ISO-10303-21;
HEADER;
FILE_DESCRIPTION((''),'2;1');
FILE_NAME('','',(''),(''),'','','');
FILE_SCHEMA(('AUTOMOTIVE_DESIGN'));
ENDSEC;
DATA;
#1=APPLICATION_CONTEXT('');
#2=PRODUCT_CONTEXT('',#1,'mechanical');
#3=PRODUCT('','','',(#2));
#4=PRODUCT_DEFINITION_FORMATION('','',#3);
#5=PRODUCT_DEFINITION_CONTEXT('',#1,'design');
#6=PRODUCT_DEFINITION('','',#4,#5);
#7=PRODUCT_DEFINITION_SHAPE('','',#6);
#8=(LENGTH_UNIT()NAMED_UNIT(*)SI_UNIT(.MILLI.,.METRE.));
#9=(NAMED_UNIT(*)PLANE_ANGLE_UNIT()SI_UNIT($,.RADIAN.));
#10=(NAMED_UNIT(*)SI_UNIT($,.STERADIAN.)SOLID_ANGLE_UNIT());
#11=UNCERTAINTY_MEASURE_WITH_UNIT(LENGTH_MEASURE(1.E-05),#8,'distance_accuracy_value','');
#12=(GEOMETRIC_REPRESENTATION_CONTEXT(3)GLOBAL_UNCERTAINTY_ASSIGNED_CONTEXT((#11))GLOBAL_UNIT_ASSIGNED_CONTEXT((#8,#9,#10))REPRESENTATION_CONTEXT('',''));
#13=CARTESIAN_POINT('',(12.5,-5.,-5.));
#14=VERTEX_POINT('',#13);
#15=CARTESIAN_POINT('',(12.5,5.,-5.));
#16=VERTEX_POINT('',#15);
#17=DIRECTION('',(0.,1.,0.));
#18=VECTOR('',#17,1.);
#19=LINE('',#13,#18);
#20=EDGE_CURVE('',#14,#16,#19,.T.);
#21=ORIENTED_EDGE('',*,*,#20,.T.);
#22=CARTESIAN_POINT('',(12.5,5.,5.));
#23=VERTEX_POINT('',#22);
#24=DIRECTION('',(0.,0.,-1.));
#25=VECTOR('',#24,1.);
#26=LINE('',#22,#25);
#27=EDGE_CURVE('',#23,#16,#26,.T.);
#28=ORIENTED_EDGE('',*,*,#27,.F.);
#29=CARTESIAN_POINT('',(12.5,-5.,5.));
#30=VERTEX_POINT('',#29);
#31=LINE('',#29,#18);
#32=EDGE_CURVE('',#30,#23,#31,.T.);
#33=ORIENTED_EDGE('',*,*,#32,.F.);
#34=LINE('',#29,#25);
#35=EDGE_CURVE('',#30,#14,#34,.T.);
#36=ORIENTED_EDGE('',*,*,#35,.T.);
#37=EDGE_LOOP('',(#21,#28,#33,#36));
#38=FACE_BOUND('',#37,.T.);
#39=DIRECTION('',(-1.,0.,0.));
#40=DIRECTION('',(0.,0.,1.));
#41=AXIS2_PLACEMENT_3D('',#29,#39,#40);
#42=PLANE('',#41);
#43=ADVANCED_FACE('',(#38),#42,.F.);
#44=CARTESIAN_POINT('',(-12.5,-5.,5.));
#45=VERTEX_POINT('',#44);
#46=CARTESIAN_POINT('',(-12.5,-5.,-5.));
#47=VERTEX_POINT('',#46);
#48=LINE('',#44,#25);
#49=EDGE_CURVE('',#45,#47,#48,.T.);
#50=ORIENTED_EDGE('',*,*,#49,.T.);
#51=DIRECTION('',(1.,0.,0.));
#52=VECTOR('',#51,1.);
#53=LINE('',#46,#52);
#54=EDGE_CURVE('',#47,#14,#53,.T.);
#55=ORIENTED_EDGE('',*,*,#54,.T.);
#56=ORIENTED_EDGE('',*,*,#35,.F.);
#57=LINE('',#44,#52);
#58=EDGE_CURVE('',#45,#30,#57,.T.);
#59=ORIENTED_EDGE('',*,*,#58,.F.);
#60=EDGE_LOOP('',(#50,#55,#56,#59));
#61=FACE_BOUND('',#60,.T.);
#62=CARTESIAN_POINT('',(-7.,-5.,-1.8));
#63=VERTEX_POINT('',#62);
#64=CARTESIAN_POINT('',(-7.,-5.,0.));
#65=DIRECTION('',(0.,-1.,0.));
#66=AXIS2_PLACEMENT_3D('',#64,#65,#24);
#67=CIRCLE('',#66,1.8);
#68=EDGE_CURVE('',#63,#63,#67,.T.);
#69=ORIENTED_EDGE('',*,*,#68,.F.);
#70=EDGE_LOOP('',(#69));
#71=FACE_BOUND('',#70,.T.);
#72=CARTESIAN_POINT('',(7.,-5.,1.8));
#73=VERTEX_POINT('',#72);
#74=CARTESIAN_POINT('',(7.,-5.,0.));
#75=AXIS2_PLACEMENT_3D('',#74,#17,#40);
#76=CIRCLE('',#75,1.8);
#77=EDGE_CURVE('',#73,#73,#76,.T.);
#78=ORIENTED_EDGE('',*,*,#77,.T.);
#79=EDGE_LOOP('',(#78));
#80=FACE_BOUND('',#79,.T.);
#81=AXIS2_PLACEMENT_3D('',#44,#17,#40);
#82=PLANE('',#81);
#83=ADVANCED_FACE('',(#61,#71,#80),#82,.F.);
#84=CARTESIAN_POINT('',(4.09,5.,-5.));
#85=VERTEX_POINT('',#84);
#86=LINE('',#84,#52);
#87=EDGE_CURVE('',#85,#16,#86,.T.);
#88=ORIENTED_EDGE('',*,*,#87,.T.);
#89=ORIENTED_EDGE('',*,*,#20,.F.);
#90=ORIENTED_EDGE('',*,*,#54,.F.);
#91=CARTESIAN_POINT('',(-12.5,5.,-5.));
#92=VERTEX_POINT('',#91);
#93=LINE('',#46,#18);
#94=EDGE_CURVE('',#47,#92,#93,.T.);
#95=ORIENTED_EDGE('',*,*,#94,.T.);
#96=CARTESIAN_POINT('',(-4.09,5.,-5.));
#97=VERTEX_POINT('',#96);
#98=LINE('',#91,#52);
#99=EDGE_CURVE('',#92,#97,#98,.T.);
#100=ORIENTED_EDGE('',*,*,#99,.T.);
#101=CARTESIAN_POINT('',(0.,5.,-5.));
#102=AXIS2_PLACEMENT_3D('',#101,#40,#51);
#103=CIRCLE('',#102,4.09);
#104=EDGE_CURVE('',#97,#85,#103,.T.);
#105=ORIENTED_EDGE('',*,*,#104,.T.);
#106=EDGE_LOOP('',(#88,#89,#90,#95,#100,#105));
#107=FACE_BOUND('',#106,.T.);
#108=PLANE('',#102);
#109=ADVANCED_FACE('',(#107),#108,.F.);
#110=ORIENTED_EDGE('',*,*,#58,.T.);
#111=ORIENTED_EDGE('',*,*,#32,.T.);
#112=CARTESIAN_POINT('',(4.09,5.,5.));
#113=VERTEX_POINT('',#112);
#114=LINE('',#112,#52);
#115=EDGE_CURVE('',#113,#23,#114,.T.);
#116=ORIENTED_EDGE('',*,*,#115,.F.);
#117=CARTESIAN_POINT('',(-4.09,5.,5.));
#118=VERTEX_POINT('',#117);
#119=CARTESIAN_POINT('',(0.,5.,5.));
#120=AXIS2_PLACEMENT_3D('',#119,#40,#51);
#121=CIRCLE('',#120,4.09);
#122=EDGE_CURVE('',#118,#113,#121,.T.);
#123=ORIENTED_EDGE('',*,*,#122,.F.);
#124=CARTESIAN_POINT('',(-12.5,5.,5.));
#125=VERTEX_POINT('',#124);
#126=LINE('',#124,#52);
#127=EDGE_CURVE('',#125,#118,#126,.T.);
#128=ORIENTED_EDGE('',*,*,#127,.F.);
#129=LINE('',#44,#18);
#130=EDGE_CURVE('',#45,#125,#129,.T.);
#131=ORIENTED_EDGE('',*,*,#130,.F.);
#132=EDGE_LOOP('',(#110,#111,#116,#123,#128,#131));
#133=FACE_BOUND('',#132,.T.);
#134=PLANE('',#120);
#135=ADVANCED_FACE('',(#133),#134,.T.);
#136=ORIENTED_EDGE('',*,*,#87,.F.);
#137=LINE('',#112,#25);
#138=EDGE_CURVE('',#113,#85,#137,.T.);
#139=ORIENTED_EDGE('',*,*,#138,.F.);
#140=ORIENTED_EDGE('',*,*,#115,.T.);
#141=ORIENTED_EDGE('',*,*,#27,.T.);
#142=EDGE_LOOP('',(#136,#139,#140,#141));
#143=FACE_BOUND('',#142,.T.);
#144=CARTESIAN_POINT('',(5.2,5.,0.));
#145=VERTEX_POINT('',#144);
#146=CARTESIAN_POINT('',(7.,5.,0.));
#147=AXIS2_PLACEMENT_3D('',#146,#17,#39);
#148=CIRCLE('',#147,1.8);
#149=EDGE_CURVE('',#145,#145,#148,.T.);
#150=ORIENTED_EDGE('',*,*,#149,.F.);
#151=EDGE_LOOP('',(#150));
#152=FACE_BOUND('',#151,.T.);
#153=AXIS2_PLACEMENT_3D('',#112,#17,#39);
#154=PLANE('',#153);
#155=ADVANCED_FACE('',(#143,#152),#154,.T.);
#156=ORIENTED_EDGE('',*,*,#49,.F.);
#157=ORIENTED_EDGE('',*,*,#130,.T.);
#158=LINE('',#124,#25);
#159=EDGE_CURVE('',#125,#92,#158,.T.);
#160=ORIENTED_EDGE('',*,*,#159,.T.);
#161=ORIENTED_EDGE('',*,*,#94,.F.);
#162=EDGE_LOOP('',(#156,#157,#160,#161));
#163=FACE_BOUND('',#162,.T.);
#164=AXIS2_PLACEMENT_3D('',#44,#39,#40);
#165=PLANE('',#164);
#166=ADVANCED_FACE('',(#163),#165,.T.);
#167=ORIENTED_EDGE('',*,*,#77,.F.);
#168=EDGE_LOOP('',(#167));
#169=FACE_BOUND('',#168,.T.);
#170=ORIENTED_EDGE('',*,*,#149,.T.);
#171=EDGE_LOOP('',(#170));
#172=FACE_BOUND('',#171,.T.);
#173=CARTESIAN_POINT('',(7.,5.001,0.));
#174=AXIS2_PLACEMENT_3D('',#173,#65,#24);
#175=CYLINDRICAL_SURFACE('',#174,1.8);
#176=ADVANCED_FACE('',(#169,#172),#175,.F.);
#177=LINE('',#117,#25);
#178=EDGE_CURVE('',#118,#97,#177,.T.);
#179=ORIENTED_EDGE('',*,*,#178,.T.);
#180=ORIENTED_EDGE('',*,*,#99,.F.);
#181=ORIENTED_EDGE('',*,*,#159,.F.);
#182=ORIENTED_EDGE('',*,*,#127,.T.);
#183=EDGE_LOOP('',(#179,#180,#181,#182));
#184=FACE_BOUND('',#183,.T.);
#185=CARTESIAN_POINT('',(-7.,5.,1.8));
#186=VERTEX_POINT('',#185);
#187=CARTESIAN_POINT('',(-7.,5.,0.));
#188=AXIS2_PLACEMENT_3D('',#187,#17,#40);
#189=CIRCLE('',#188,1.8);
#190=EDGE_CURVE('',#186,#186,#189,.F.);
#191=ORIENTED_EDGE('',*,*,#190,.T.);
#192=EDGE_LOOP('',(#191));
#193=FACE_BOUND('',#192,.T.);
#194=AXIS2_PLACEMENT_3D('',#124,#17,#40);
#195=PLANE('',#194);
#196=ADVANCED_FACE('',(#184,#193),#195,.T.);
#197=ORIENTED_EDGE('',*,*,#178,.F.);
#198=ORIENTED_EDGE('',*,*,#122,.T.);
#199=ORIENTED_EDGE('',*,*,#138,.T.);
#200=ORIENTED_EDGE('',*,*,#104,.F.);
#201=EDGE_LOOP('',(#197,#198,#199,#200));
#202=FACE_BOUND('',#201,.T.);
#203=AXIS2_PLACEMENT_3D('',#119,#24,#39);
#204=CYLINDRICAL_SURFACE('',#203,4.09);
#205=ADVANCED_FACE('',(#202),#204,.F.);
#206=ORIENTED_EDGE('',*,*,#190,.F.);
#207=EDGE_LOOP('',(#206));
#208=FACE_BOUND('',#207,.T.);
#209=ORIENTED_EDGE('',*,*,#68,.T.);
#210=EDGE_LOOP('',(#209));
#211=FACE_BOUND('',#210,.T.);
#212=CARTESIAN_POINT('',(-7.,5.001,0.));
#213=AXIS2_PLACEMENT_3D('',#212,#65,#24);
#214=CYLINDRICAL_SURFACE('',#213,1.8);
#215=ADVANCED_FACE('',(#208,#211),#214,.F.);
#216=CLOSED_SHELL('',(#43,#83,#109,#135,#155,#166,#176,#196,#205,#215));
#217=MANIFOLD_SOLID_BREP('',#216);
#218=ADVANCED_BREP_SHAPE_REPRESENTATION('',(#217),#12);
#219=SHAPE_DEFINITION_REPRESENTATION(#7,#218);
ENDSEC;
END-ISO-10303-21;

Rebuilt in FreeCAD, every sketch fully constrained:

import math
import FreeCAD as App
import Part
import Sketcher

V = App.Vector
Q = App.Units.Quantity

doc = App.newDocument("Part")
body = doc.addObject("PartDesign::Body", "Body")

sketch1 = doc.addObject("Sketcher::SketchObject", "Sketch")
body.addObject(sketch1)
sketch1.AttachmentSupport = (doc.XY_Plane, [""])
sketch1.MapMode = "FlatFace"
sketch1.addGeometry(Part.LineSegment(V(-12.5, -5, 0), V(12.5, -5, 0)), False)
sketch1.addGeometry(Part.LineSegment(V(12.5, -5, 0), V(12.5, 5, 0)), False)
sketch1.addGeometry(Part.LineSegment(V(12.5, 5, 0), V(4.1, 5, 0)), False)
sketch1.addGeometry(Part.ArcOfCircle(Part.Circle(V(0, 5, 0), V(0, 0, 1), 4.1), math.radians(180), math.radians(360)), False)
sketch1.addGeometry(Part.LineSegment(V(-4.1, 5, 0), V(-12.5, 5, 0)), False)
sketch1.addGeometry(Part.LineSegment(V(-12.5, 5, 0), V(-12.5, -5, 0)), False)
sketch1.addConstraint(Sketcher.Constraint("Coincident", 0, 2, 1, 1))
sketch1.addConstraint(Sketcher.Constraint("Coincident", 1, 2, 2, 1))
sketch1.addConstraint(Sketcher.Constraint("Coincident", 2, 2, 3, 2))
sketch1.addConstraint(Sketcher.Constraint("Coincident", 3, 1, 4, 1))
sketch1.addConstraint(Sketcher.Constraint("Coincident", 4, 2, 5, 1))
sketch1.addConstraint(Sketcher.Constraint("Coincident", 5, 2, 0, 1))
sketch1.addConstraint(Sketcher.Constraint("Horizontal", 0))
sketch1.addConstraint(Sketcher.Constraint("Vertical", 1))
sketch1.addConstraint(Sketcher.Constraint("Horizontal", 2))
sketch1.addConstraint(Sketcher.Constraint("Horizontal", 4))
sketch1.addConstraint(Sketcher.Constraint("Vertical", 5))
sketch1.addConstraint(Sketcher.Constraint("Symmetric", 0, 2, 4, 2, -1, 1))
sketch1.addConstraint(Sketcher.Constraint("Symmetric", 2, 2, 3, 1, -2))
sketch1.addConstraint(Sketcher.Constraint("Horizontal", 3, 3, 1, 2))
sketch1.addConstraint(Sketcher.Constraint("DistanceX", 0, 1, 0, 2, Q("25 mm")))
sketch1.addConstraint(Sketcher.Constraint("DistanceY", 1, 1, 1, 2, Q("10 mm")))
sketch1.addConstraint(Sketcher.Constraint("Radius", 3, Q("4.09 mm")))
pad1 = doc.addObject("PartDesign::Pad", "Pad")
body.addObject(pad1)
pad1.Profile = sketch1
pad1.Length = 10
pad1.Midplane = True

sketch2 = doc.addObject("Sketcher::SketchObject", "Sketch001")
body.addObject(sketch2)
sketch2.AttachmentSupport = (doc.XZ_Plane, [""])
sketch2.MapMode = "FlatFace"
sketch2.AttachmentOffset = App.Placement(V(0, 0, 5), App.Rotation())
sketch2.addGeometry(Part.Circle(V(-7, 0, 0), V(0, 0, 1), 1.8), False)
sketch2.addConstraint(Sketcher.Constraint("PointOnObject", 0, 3, -1))
sketch2.addConstraint(Sketcher.Constraint("Diameter", 0, Q("3.6 mm")))
sketch2.addConstraint(Sketcher.Constraint("DistanceX", 0, 3, -1, 1, Q("7 mm")))
pocket1 = doc.addObject("PartDesign::Pocket", "Pocket")
body.addObject(pocket1)
pocket1.Profile = sketch2
pocket1.Type = "UpToFirst"

sketch3 = doc.addObject("Sketcher::SketchObject", "Sketch002")
body.addObject(sketch3)
sketch3.AttachmentSupport = (doc.XZ_Plane, [""])
sketch3.MapMode = "FlatFace"
sketch3.AttachmentOffset = App.Placement(V(0, 0, 5), App.Rotation())
sketch3.addGeometry(Part.Circle(V(7, 0, 0), V(0, 0, 1), 1.8), False)
sketch3.addConstraint(Sketcher.Constraint("PointOnObject", 0, 3, -1))
sketch3.addConstraint(Sketcher.Constraint("Diameter", 0, Q("3.6 mm")))
sketch3.addConstraint(Sketcher.Constraint("DistanceX", -1, 1, 0, 3, Q("7 mm")))
pocket2 = doc.addObject("PartDesign::Pocket", "Pocket001")
body.addObject(pocket2)
pocket2.Profile = sketch3
pocket2.Type = "UpToFirst"

doc.recompute()
